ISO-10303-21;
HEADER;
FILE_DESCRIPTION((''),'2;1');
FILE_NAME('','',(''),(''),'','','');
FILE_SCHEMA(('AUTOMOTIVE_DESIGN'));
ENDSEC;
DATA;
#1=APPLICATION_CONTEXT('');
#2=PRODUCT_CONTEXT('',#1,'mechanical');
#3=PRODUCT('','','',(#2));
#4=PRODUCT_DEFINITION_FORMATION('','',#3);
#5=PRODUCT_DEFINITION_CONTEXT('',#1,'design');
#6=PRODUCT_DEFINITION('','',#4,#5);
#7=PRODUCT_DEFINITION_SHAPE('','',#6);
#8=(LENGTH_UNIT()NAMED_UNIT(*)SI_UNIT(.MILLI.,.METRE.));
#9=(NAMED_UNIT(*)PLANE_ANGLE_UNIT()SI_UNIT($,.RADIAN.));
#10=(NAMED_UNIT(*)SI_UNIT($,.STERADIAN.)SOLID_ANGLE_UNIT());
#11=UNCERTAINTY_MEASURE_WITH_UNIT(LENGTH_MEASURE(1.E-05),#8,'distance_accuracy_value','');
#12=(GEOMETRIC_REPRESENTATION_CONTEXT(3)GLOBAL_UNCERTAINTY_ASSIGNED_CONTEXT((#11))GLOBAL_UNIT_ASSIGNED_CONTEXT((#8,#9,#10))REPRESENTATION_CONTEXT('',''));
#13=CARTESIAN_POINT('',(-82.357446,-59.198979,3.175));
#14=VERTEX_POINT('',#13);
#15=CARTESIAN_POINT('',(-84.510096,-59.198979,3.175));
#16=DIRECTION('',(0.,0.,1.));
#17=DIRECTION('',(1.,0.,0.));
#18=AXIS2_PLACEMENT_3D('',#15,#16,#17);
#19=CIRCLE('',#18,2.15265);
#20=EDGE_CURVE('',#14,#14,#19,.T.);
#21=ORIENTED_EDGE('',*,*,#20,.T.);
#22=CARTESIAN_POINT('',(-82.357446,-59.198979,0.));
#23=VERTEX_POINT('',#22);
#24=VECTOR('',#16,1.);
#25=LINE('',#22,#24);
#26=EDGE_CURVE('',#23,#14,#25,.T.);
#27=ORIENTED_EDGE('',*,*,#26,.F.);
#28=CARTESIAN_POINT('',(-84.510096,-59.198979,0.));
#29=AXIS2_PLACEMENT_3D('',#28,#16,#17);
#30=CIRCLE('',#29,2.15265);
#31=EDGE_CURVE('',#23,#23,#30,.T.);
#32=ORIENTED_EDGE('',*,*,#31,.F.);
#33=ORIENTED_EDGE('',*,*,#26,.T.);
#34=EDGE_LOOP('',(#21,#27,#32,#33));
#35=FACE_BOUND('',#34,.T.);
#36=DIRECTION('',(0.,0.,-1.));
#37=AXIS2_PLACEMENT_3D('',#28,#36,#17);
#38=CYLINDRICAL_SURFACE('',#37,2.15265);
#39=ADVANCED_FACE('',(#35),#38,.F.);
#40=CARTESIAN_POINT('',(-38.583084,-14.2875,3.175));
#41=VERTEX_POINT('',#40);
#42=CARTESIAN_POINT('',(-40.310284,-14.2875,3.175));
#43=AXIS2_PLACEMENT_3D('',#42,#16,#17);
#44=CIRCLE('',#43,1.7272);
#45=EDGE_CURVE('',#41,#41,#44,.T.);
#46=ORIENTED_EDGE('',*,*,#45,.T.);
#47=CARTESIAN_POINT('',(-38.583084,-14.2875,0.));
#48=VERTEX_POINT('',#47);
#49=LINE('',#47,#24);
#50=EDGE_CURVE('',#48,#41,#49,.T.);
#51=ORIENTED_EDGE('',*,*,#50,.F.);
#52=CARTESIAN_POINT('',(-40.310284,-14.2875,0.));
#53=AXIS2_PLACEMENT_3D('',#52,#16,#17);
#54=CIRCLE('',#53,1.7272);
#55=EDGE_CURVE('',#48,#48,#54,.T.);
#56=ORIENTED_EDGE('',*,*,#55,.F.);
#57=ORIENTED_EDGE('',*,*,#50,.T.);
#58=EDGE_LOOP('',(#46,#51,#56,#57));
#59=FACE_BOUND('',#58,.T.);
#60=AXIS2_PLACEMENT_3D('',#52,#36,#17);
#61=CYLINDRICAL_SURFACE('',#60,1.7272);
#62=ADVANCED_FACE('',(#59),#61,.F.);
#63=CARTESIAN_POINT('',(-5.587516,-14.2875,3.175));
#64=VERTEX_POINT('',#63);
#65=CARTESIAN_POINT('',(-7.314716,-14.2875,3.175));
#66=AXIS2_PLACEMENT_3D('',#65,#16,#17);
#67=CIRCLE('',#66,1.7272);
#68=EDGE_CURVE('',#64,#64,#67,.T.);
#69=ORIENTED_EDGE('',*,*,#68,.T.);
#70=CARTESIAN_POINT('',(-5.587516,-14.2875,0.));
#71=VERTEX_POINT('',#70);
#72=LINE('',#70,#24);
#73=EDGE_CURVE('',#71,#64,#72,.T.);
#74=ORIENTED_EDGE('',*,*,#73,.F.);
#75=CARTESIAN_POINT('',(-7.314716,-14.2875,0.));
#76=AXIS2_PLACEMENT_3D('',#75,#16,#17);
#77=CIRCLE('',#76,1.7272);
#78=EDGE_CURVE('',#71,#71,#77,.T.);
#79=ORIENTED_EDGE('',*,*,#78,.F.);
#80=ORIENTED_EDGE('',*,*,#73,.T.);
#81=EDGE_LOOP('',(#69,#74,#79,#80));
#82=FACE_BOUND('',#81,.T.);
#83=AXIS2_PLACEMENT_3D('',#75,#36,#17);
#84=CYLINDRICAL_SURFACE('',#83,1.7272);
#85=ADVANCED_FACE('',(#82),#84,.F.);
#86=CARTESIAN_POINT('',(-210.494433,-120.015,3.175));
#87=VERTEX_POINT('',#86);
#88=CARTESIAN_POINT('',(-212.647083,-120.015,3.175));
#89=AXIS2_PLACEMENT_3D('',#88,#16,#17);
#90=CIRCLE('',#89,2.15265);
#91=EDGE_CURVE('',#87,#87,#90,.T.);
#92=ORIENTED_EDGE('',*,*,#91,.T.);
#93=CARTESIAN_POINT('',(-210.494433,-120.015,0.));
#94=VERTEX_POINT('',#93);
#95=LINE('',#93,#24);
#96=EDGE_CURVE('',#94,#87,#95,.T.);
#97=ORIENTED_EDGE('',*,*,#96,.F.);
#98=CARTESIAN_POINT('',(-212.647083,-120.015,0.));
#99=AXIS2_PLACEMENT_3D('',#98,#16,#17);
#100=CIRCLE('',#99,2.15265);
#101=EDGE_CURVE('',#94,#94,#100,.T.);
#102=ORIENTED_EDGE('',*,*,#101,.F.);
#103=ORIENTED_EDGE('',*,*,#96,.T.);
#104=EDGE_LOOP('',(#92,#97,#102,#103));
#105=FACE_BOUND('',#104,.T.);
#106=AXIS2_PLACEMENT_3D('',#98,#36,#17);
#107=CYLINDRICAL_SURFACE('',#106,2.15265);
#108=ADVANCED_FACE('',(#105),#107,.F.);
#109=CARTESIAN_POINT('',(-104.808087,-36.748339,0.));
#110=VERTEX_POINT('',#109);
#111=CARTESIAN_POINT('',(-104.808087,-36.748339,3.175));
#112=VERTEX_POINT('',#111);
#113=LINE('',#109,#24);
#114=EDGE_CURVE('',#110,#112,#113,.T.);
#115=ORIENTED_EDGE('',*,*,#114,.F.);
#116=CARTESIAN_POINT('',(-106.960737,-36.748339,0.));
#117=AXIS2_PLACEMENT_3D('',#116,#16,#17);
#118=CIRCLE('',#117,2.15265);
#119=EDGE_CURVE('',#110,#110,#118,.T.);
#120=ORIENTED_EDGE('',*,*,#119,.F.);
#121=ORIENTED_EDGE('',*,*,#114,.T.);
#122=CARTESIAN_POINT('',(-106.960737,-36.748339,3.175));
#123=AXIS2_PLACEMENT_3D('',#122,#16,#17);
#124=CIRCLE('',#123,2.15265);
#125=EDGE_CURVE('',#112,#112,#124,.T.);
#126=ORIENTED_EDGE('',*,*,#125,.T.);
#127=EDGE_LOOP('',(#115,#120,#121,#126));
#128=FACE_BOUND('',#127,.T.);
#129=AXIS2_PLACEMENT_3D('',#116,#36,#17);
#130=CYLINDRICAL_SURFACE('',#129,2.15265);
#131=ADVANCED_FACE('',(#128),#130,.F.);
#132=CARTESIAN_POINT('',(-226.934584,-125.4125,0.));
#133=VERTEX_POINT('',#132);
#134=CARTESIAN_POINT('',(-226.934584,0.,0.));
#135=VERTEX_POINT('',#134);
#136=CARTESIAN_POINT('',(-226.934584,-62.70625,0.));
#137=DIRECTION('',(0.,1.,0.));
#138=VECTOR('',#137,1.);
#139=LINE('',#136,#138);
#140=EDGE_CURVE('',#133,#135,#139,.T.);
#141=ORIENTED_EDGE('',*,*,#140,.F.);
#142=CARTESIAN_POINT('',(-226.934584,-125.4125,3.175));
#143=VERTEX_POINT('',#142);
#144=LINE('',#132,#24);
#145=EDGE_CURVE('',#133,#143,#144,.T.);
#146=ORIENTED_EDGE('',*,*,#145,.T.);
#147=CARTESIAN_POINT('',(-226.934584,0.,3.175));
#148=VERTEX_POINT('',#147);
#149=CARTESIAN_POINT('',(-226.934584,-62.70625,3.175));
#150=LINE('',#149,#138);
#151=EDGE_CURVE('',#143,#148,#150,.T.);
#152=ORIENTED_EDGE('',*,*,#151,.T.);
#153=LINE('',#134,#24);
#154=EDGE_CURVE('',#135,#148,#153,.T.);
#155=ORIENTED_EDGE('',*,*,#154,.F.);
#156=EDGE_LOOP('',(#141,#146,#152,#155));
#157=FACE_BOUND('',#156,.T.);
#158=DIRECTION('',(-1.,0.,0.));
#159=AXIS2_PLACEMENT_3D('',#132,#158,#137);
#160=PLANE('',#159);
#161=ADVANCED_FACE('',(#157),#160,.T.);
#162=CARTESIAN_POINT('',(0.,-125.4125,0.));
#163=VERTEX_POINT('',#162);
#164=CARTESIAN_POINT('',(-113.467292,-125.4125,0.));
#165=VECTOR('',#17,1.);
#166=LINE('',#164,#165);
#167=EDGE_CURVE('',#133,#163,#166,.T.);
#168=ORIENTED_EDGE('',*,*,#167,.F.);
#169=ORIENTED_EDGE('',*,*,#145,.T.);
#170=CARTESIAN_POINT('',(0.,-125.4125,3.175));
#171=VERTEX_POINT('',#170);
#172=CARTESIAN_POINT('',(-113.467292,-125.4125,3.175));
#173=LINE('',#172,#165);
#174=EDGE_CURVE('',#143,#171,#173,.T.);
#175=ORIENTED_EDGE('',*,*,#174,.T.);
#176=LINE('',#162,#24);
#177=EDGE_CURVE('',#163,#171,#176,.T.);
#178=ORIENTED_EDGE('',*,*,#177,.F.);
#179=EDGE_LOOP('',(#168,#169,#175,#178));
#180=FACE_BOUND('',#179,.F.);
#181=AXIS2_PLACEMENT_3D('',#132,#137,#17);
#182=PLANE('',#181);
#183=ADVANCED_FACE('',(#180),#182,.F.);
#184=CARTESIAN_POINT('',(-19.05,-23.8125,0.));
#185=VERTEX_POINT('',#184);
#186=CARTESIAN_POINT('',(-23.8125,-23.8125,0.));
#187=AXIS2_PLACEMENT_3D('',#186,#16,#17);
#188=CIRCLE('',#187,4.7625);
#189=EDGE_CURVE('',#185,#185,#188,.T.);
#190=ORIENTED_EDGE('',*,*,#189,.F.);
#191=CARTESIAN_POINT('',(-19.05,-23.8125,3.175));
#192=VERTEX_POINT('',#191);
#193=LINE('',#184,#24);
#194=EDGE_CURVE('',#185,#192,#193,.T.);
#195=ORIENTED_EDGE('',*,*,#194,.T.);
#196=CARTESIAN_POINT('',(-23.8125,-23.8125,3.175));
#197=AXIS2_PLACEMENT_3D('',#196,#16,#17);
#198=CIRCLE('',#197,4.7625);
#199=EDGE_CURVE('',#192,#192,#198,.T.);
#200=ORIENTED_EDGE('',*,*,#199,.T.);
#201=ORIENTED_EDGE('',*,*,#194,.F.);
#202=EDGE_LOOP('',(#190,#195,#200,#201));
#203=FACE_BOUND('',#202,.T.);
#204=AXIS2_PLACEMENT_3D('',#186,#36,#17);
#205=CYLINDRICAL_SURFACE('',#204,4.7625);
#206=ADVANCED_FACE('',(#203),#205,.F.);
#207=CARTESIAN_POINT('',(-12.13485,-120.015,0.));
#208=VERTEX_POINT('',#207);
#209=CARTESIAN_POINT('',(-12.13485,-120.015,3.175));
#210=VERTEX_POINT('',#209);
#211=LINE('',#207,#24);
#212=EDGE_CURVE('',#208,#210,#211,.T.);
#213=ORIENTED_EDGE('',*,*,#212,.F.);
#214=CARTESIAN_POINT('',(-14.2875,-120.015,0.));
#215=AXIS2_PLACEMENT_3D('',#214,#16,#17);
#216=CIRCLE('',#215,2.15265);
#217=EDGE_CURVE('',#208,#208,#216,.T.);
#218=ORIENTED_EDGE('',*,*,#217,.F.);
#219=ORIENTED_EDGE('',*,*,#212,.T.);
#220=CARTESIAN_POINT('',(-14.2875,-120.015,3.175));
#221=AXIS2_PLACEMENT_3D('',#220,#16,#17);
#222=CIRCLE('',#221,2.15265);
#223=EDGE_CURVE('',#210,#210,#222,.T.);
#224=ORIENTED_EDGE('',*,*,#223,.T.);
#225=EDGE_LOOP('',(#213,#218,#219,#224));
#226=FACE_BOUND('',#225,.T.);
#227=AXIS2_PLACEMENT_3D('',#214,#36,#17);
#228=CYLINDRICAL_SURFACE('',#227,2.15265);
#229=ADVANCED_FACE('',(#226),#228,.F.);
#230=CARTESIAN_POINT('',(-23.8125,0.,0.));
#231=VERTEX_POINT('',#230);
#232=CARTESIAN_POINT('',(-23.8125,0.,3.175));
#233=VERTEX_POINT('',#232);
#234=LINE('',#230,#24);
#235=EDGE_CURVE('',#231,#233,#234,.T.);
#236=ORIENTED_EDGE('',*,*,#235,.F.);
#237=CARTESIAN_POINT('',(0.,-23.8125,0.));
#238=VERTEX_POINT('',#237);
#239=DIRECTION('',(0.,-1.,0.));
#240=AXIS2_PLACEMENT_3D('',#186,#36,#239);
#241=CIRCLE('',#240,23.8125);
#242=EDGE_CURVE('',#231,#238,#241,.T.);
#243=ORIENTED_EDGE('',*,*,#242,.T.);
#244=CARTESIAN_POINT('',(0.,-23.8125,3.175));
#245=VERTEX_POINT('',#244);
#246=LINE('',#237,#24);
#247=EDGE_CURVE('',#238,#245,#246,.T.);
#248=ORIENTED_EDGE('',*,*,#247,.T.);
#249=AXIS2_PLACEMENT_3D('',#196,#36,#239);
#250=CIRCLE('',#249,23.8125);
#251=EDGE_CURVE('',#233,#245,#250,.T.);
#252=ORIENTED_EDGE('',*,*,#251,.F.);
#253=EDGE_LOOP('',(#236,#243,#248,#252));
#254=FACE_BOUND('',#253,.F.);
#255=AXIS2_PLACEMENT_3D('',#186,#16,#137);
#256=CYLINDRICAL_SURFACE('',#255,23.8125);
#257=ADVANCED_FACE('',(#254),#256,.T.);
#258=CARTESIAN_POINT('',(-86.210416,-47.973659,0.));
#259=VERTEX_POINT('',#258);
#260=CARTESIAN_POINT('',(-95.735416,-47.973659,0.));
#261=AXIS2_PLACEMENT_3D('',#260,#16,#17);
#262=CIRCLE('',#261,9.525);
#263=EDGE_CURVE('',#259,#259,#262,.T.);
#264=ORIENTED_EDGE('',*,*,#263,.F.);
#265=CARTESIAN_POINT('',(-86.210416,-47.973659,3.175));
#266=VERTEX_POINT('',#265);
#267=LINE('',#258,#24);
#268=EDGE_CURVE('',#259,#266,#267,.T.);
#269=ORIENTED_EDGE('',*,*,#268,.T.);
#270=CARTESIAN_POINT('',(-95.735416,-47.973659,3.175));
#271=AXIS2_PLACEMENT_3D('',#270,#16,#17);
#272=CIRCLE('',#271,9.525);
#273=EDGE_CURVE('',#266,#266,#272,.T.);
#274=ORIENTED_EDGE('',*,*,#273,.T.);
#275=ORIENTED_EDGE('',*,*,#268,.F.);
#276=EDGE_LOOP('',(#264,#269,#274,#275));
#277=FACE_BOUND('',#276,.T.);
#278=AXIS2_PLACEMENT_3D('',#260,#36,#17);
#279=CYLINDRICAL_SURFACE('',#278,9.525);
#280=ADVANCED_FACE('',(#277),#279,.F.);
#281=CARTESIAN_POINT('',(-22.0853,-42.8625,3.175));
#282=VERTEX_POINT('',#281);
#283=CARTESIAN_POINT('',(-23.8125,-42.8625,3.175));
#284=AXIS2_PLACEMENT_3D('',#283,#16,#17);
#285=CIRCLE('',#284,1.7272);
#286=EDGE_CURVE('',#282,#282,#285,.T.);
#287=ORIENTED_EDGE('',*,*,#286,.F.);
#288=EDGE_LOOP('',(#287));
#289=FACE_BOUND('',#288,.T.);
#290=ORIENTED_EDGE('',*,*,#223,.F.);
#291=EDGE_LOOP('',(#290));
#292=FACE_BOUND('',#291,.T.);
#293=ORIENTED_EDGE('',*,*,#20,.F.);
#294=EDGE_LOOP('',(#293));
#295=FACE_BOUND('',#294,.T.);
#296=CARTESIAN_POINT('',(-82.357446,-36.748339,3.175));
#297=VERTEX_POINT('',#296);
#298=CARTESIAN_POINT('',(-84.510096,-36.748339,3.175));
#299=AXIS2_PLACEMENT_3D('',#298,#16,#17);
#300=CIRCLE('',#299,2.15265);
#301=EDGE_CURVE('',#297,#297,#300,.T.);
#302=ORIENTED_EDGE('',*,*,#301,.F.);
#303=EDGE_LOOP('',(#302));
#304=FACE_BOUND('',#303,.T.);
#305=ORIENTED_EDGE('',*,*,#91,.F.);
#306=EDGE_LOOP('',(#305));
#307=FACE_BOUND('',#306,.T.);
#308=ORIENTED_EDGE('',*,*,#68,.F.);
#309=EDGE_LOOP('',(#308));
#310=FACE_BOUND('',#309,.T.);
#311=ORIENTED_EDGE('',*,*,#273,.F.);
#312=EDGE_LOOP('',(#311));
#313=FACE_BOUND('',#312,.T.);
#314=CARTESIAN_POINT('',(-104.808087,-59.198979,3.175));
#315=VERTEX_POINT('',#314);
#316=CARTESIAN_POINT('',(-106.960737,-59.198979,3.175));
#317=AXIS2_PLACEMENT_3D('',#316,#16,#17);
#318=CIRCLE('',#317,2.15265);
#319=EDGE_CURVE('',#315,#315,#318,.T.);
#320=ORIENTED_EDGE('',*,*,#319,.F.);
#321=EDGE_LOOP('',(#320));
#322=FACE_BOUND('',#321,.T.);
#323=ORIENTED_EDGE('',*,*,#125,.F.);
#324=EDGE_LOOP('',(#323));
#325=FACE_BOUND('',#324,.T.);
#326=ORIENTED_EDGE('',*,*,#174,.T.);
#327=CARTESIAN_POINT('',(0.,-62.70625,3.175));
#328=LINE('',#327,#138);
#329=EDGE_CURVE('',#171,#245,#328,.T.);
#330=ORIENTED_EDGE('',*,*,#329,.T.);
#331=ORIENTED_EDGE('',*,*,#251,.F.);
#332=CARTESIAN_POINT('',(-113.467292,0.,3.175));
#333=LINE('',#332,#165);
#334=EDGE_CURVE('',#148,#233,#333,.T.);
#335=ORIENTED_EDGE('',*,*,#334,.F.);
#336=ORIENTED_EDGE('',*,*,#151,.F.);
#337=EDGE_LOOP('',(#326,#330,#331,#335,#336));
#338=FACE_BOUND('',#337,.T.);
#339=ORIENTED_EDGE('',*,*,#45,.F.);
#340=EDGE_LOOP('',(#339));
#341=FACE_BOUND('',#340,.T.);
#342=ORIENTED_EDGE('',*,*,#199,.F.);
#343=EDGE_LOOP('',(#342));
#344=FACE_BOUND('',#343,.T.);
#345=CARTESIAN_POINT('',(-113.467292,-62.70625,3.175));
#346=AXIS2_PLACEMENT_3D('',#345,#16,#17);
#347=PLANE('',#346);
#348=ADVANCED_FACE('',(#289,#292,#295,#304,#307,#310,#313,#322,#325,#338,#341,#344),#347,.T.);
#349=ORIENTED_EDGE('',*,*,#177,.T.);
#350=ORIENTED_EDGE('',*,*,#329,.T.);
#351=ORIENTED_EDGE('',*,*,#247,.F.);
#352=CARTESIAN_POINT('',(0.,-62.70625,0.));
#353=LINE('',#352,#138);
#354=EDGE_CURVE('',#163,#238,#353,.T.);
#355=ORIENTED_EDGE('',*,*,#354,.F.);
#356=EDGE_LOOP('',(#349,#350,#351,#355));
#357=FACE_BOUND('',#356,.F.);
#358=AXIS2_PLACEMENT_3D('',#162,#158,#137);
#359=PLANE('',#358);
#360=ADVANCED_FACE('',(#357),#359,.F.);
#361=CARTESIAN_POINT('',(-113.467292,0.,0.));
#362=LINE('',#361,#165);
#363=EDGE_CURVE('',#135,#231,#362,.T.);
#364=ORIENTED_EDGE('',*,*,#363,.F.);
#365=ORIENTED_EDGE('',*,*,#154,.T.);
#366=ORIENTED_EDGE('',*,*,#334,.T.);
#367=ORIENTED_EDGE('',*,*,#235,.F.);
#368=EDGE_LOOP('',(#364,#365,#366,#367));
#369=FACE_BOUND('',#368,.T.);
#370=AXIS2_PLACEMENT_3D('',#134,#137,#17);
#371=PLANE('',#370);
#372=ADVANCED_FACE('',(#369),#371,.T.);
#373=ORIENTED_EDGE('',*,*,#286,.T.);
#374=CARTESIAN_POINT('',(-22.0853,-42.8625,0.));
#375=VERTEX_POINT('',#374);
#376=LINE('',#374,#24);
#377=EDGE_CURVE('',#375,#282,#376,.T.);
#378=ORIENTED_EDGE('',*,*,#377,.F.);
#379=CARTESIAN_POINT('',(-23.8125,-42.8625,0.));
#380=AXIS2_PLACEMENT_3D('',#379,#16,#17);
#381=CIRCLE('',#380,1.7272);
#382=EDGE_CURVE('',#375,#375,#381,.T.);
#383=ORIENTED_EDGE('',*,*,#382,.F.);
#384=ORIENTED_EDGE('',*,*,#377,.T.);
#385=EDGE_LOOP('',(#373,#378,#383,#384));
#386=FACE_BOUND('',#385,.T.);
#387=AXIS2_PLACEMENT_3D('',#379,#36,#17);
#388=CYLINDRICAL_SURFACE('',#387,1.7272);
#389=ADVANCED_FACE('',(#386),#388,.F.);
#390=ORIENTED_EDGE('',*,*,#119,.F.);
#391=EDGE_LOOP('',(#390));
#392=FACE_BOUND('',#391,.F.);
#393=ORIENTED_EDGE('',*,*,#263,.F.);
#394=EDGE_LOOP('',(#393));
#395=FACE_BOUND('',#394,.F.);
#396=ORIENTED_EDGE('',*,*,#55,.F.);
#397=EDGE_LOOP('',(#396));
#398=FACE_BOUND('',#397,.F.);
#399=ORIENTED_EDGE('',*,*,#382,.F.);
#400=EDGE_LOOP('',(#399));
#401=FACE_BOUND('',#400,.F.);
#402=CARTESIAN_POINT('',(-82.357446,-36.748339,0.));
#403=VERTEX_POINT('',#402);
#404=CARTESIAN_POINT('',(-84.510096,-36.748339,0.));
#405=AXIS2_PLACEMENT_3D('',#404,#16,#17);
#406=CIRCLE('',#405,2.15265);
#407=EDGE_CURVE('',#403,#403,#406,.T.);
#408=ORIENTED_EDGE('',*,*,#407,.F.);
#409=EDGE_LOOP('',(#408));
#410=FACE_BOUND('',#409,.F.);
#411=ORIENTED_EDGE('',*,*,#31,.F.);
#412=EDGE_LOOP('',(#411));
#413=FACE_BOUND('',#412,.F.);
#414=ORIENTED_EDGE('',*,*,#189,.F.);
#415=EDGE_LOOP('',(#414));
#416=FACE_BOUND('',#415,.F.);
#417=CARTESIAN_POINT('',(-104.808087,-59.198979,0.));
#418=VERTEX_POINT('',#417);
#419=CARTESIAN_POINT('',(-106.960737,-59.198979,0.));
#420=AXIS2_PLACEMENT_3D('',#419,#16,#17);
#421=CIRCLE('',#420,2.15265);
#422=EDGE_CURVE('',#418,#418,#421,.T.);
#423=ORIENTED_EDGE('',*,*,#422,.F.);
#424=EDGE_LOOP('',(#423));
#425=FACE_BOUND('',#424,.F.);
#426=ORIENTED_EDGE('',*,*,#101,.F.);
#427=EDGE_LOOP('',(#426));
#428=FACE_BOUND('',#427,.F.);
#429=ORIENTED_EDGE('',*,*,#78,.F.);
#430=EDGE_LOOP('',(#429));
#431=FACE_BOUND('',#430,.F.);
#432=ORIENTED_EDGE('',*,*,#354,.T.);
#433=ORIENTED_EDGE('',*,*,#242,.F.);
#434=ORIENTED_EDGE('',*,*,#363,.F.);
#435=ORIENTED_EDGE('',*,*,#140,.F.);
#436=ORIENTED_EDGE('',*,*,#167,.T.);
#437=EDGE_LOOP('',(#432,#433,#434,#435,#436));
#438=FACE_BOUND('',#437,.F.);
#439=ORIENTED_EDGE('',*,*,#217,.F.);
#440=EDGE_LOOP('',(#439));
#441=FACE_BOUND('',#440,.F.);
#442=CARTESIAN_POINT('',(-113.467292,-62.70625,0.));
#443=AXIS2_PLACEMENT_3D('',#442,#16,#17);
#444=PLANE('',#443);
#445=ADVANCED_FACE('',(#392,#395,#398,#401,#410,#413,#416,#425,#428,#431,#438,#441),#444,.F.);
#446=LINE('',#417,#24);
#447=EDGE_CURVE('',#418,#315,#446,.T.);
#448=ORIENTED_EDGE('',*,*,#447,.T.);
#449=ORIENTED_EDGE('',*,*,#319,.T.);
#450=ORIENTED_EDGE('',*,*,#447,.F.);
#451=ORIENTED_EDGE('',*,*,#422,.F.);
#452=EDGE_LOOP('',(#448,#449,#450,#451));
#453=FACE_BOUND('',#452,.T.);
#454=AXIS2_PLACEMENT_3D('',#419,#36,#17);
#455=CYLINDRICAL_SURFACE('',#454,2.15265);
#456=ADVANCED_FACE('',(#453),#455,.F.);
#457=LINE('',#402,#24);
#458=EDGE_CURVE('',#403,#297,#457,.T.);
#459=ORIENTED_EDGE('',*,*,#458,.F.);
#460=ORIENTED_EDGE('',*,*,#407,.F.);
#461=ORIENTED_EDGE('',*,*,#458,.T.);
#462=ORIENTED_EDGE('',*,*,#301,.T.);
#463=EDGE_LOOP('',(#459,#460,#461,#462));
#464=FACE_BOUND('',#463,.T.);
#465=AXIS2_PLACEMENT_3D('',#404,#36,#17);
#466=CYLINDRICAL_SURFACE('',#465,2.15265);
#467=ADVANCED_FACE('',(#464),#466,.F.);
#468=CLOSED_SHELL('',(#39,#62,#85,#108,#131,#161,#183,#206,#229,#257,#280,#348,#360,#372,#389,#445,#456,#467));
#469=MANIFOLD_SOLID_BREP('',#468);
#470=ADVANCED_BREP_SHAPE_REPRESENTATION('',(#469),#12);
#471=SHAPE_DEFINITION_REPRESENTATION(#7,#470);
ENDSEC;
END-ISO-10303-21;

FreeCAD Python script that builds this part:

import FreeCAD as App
import Part
import Sketcher

V = App.Vector
Q = App.Units.Quantity


def edges_at(feature, points):
    """Names of the edges that pass closest to the given points."""
    edges = feature.Shape.Edges
    near = lambda p: min(range(len(edges)), key=lambda i: edges[i].distToShape(Part.Vertex(*p))[0])
    return sorted({f"Edge{near(p) + 1}" for p in points})


def add_polygon(sketch, points):
    """Adds a closed chain of lines whose ends are joined by coincident constraints."""
    first, n = sketch.GeometryCount, len(points)
    for a, b in zip(points, points[1:] + points[:1]):
        sketch.addGeometry(Part.LineSegment(App.Vector(*a, 0), App.Vector(*b, 0)), False)
    for i in range(n):
        sketch.addConstraint(Sketcher.Constraint("Coincident", first + i, 2, first + (i + 1) % n, 1))

doc = App.newDocument("Part")
body = doc.addObject("PartDesign::Body", "Body")

sketch1 = body.newObject("Sketcher::SketchObject", "Sketch")
sketch1.AttachmentSupport = (doc.getObject("XY_Plane"), [""])
sketch1.MapMode = "FlatFace"
add_polygon(sketch1, [(-226.9, 0), (-226.9, -125.4), (0, -125.4), (0, 0)])
sketch1.addGeometry(Part.Circle(V(-212.6, -120, 0), V(0, 0, 1), 2.2), False)
sketch1.addGeometry(Part.Circle(V(-14.3, -120, 0), V(0, 0, 1), 2.2), False)
sketch1.addGeometry(Part.Circle(V(-107, -59.2, 0), V(0, 0, 1), 2.2), False)
sketch1.addGeometry(Part.Circle(V(-84.5, -59.2, 0), V(0, 0, 1), 2.2), False)
sketch1.addGeometry(Part.Circle(V(-95.7, -48, 0), V(0, 0, 1), 9.5), False)
sketch1.addGeometry(Part.Circle(V(-23.8, -42.9, 0), V(0, 0, 1), 1.7), False)
sketch1.addGeometry(Part.Circle(V(-107, -36.7, 0), V(0, 0, 1), 2.2), False)
sketch1.addGeometry(Part.Circle(V(-84.5, -36.7, 0), V(0, 0, 1), 2.2), False)
sketch1.addGeometry(Part.Circle(V(-40.3, -14.3, 0), V(0, 0, 1), 1.7), False)
sketch1.addGeometry(Part.Circle(V(-23.8, -23.8, 0), V(0, 0, 1), 4.8), False)
sketch1.addGeometry(Part.Circle(V(-7.3, -14.3, 0), V(0, 0, 1), 1.7), False)
sketch1.addConstraint([
    Sketcher.Constraint("Vertical", 0),
    Sketcher.Constraint("Horizontal", 1),
    Sketcher.Constraint("Vertical", 2),
    Sketcher.Constraint("Horizontal", 3),
    Sketcher.Constraint("Coincident", 2, 2, -1, 1),
    Sketcher.Constraint("Equal", 4, 5),
    Sketcher.Constraint("Equal", 5, 6),
    Sketcher.Constraint("Equal", 6, 7),
    Sketcher.Constraint("Equal", 7, 10),
    Sketcher.Constraint("Equal", 10, 11),
    Sketcher.Constraint("Equal", 9, 12),
    Sketcher.Constraint("Equal", 12, 14),
    Sketcher.Constraint("Horizontal", 4, 3, 5, 3),
    Sketcher.Constraint("Horizontal", 6, 3, 7, 3),
    Sketcher.Constraint("Horizontal", 10, 3, 11, 3),
    Sketcher.Constraint("Horizontal", 12, 3, 14, 3),
    Sketcher.Constraint("Vertical", 6, 3, 10, 3),
    Sketcher.Constraint("Vertical", 7, 3, 11, 3),
    Sketcher.Constraint("Vertical", 9, 3, 13, 3),
    Sketcher.Constraint("Diameter", 8, Q("0.75 in")),
    Sketcher.Constraint("Diameter", 9, Q("0.136 in")),
    Sketcher.Constraint("Diameter", 13, Q("0.375 in")),
    Sketcher.Constraint("DistanceY", 1, 2, 13, 3, Q("4 in")),
    Sketcher.Constraint("Diameter", 4, Q("0.1695 in")),
    Sketcher.Constraint("DistanceY", 0, 2, 0, 1, Q("4.9375 in")),
    Sketcher.Constraint("DistanceY", 9, 3, 13, 3, Q("0.75 in")),
    Sketcher.Constraint("DistanceY", 4, 3, -1, 1, Q("4.725 in")),
    Sketcher.Constraint("DistanceX", 5, 3, -1, 1, Q("0.5625 in")),
    Sketcher.Constraint("DistanceX", 9, 3, -1, 1, Q("0.9375 in")),
    Sketcher.Constraint("DistanceY", 12, 3, -1, 1, Q("0.5625 in")),
    Sketcher.Constraint("DistanceX", 0, 2, 4, 3, Q("0.5625 in")),
    Sketcher.Constraint("DistanceX", 1, 1, 1, 2, Q("226.934583 mm")),
    Sketcher.Constraint("DistanceY", 6, 3, -1, 1, Q("59.198979 mm")),
    Sketcher.Constraint("DistanceY", 8, 3, -1, 1, Q("47.973659 mm")),
    Sketcher.Constraint("DistanceY", 10, 3, -1, 1, Q("36.748339 mm")),
    Sketcher.Constraint("DistanceX", 6, 3, 7, 3, Q("22.450641 mm")),
    Sketcher.Constraint("DistanceX", 8, 3, 7, 3, Q("11.22532 mm")),
    Sketcher.Constraint("DistanceX", 8, 3, 12, 3, Q("55.425132 mm")),
    Sketcher.Constraint("DistanceX", 12, 3, 14, 3, Q("32.995568 mm")),
    Sketcher.Constraint("DistanceX", 6, 3, -1, 1, Q("106.960737 mm")),
])
pad1 = body.newObject("PartDesign::Pad", "Pad")
pad1.Profile = sketch1
pad1.Length = Q("0.125 in")
doc.recompute()

fillet = body.newObject("PartDesign::Fillet", "Fillet")
fillet.Base = (pad1, edges_at(pad1, [(0, 0, 1.587)]))
fillet.Radius = Q("0.9375 in")

doc.recompute()
